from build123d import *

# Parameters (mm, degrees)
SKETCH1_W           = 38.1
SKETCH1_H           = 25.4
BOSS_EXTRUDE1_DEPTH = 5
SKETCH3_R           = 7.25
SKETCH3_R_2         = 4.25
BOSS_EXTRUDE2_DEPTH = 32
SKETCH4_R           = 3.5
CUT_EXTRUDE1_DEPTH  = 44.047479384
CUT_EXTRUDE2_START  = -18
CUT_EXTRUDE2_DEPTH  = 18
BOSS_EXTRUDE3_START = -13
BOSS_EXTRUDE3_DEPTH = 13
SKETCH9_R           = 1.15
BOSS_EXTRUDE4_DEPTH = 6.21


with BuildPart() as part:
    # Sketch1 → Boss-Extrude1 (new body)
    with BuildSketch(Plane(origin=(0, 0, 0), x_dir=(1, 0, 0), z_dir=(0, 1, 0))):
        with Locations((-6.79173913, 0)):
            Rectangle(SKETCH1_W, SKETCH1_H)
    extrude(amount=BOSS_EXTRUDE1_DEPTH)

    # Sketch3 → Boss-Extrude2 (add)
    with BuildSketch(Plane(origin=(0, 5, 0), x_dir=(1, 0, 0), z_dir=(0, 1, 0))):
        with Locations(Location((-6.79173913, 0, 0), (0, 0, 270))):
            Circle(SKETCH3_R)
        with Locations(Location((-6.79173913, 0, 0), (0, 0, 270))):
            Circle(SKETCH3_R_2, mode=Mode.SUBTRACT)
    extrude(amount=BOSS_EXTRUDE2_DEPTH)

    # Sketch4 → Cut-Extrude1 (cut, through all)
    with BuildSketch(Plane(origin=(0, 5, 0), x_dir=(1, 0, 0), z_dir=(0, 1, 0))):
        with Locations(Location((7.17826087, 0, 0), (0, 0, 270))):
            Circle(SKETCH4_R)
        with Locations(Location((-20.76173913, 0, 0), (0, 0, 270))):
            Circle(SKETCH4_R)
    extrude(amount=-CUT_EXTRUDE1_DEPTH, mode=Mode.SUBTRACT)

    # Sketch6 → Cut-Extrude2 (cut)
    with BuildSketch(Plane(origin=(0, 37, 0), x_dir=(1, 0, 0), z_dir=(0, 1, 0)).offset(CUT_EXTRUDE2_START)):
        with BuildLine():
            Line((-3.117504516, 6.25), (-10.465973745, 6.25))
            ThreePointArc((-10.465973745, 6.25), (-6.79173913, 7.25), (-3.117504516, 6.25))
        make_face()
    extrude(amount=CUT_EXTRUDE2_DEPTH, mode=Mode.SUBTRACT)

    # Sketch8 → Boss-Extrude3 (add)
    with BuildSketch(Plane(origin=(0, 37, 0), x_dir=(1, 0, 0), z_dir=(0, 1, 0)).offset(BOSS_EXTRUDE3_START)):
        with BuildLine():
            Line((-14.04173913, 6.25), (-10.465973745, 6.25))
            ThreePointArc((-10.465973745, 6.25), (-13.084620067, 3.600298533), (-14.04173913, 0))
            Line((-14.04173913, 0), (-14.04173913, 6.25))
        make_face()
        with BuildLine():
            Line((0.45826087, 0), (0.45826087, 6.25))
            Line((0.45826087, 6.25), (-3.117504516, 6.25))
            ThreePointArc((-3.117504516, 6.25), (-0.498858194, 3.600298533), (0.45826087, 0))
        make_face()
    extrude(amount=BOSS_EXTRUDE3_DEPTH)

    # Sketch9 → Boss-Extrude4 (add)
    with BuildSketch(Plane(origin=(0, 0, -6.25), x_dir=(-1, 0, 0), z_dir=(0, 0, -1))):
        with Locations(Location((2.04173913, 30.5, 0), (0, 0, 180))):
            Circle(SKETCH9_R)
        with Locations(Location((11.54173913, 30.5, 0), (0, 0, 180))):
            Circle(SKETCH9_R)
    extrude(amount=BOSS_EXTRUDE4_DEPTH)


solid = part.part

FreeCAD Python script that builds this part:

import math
import FreeCAD as App
import Part
import Sketcher
Q = App.Units.Quantity

doc = App.newDocument("Part")
body = doc.addObject("PartDesign::Body", "Body")

sketch1 = doc.addObject("Sketcher::SketchObject", "Sketch")
body.addObject(sketch1)
sketch1.AttachmentSupport = (doc.XZ_Plane, [""])
sketch1.MapMode = "FlatFace"
sketch1.addGeometry([
    Part.LineSegment(App.Vector(-26, -13, 0), App.Vector(-26, 13, 0)),
    Part.LineSegment(App.Vector(-26, 13, 0), App.Vector(12, 13, 0)),
    Part.LineSegment(App.Vector(12, 13, 0), App.Vector(12, -13, 0)),
    Part.LineSegment(App.Vector(12, -13, 0), App.Vector(-26, -13, 0)),
], False)
sketch1.addConstraint([
    Sketcher.Constraint("Coincident", 0, 2, 1, 1),
    Sketcher.Constraint("Coincident", 1, 2, 2, 1),
    Sketcher.Constraint("Coincident", 2, 2, 3, 1),
    Sketcher.Constraint("Coincident", 3, 2, 0, 1),
    Sketcher.Constraint("Vertical", 0),
    Sketcher.Constraint("Horizontal", 1),
    Sketcher.Constraint("Vertical", 2),
    Sketcher.Constraint("Horizontal", 3),
    Sketcher.Constraint("DistanceX", 1, 1, 1, 2, Q("38.1 mm")),
    Sketcher.Constraint("DistanceY", 0, 1, 0, 2, Q("25.4 mm")),
    Sketcher.Constraint("DistanceY", -1, 1, 0, 2, Q("12.7 mm")),
    Sketcher.Constraint("DistanceX", 0, 2, -1, 1, Q("25.841739 mm")),
])
pad1 = doc.addObject("PartDesign::Pad", "Pad")
body.addObject(pad1)
pad1.Profile = sketch1
pad1.Length = 5
pad1.Reversed = True

sketch2 = doc.addObject("Sketcher::SketchObject", "Sketch001")
body.addObject(sketch2)
sketch2.AttachmentSupport = (doc.XZ_Plane, [""])
sketch2.MapMode = "FlatFace"
sketch2.AttachmentOffset = App.Placement(App.Vector(0, 0, -5), App.Rotation())
sketch2.addGeometry([
    Part.Circle(App.Vector(-6.8, 0, 0), App.Vector(0, 0, 1), 7.2),
    Part.Circle(App.Vector(-6.8, 0, 0), App.Vector(0, 0, 1), 4.2),
], False)
sketch2.addConstraint([
    Sketcher.Constraint("Coincident", 1, 3, 0, 3),
    Sketcher.Constraint("PointOnObject", 0, 3, -1),
    Sketcher.Constraint("Diameter", 0, Q("14.5 mm")),
    Sketcher.Constraint("Diameter", 1, Q("8.5 mm")),
    Sketcher.Constraint("DistanceX", 0, 3, -1, 1, Q("6.791739 mm")),
])
pad2 = doc.addObject("PartDesign::Pad", "Pad001")
body.addObject(pad2)
pad2.Profile = sketch2
pad2.Length = 32
pad2.Reversed = True

sketch3 = doc.addObject("Sketcher::SketchObject", "Sketch002")
body.addObject(sketch3)
sketch3.AttachmentSupport = (doc.XZ_Plane, [""])
sketch3.MapMode = "FlatFace"
sketch3.AttachmentOffset = App.Placement(App.Vector(0, 0, -5), App.Rotation())
sketch3.addGeometry([
    Part.Circle(App.Vector(7.2, 0, 0), App.Vector(0, 0, 1), 3.5),
    Part.Circle(App.Vector(-20.8, 0, 0), App.Vector(0, 0, 1), 3.5),
], False)
sketch3.addConstraint([
    Sketcher.Constraint("Equal", 0, 1),
    Sketcher.Constraint("PointOnObject", 0, 3, -1),
    Sketcher.Constraint("PointOnObject", 1, 3, -1),
    Sketcher.Constraint("Diameter", 0, Q("7 mm")),
    Sketcher.Constraint("DistanceX", 1, 3, 0, 3, Q("27.94 mm")),
    Sketcher.Constraint("DistanceX", -1, 1, 0, 3, Q("7.178261 mm")),
])
pocket1 = doc.addObject("PartDesign::Pocket", "Pocket")
body.addObject(pocket1)
pocket1.Profile = sketch3
pocket1.Type = "ThroughAll"
pocket1.Reversed = True

sketch4 = doc.addObject("Sketcher::SketchObject", "Sketch003")
body.addObject(sketch4)
sketch4.AttachmentSupport = (doc.XZ_Plane, [""])
sketch4.MapMode = "FlatFace"
sketch4.AttachmentOffset = App.Placement(App.Vector(0, 0, -19), App.Rotation())
sketch4.addGeometry([
    Part.LineSegment(App.Vector(-10, -6, 0), App.Vector(-3, -6, 0)),
    Part.ArcOfCircle(Part.Circle(App.Vector(-7, 0, 0), App.Vector(0, 0, 1), 7), math.radians(-120), math.radians(-60)),
], False)
sketch4.addConstraint([
    Sketcher.Constraint("Coincident", 0, 1, 1, 1),
    Sketcher.Constraint("Coincident", 1, 2, 0, 2),
    Sketcher.Constraint("Horizontal", 0),
    Sketcher.Constraint("PointOnObject", 1, 3, -1),
    Sketcher.Constraint("Radius", 1, Q("7.25 mm")),
    Sketcher.Constraint("DistanceY", 0, 1, -1, 1, Q("6.25 mm")),
    Sketcher.Constraint("DistanceX", 1, 3, -1, 1, Q("6.791739 mm")),
])
pocket2 = doc.addObject("PartDesign::Pocket", "Pocket001")
body.addObject(pocket2)
pocket2.Profile = sketch4
pocket2.Length = 18

sketch5 = doc.addObject("Sketcher::SketchObject", "Sketch004")
body.addObject(sketch5)
sketch5.AttachmentSupport = (doc.XZ_Plane, [""])
sketch5.MapMode = "FlatFace"
sketch5.AttachmentOffset = App.Placement(App.Vector(0, 0, -24), App.Rotation())
sketch5.addGeometry([
    Part.LineSegment(App.Vector(-10.5, -6.2, 0), App.Vector(-14, -6.2, 0)),
    Part.LineSegment(App.Vector(-14, -6.2, 0), App.Vector(-14, 0, 0)),
    Part.ArcOfCircle(Part.Circle(App.Vector(-6.8, 0, 0), App.Vector(0, 0, 1), 7.2), math.radians(180), math.radians(240)),
    Part.LineSegment(App.Vector(0.5, 0, 0), App.Vector(0.5, -6.2, 0)),
    Part.LineSegment(App.Vector(0.5, -6.2, 0), App.Vector(-3.1, -6.2, 0)),
    Part.ArcOfCircle(Part.Circle(App.Vector(-6.8, 0, 0), App.Vector(0, 0, 1), 7.2), math.radians(-60), math.radians(0)),
], False)
sketch5.addConstraint([
    Sketcher.Constraint("Coincident", 0, 2, 1, 1),
    Sketcher.Constraint("Tangent", 1, 2, 2, 1),
    Sketcher.Constraint("Coincident", 2, 2, 0, 1),
    Sketcher.Constraint("Coincident", 3, 2, 4, 1),
    Sketcher.Constraint("Coincident", 4, 2, 5, 1),
    Sketcher.Constraint("Tangent", 5, 2, 3, 1),
    Sketcher.Constraint("Horizontal", 0),
    Sketcher.Constraint("Vertical", 1),
    Sketcher.Constraint("Vertical", 3),
    Sketcher.Constraint("Horizontal", 4),
    Sketcher.Constraint("Coincident", 5, 3, 2, 3),
    Sketcher.Constraint("Equal", 2, 5),
    Sketcher.Constraint("PointOnObject", 2, 3, -1),
    Sketcher.Constraint("Horizontal", 2, 2, 3, 2),
    Sketcher.Constraint("Radius", 2, Q("7.25 mm")),
    Sketcher.Constraint("DistanceY", 1, 1, 1, 2, Q("6.25 mm")),
    Sketcher.Constraint("DistanceX", 2, 3, -1, 1, Q("6.791739 mm")),
])
pad3 = doc.addObject("PartDesign::Pad", "Pad002")
body.addObject(pad3)
pad3.Profile = sketch5
pad3.Length = 13
pad3.Reversed = True

sketch6 = doc.addObject("Sketcher::SketchObject", "Sketch005")
body.addObject(sketch6)
sketch6.AttachmentSupport = (doc.XY_Plane, [""])
sketch6.MapMode = "FlatFace"
sketch6.AttachmentOffset = App.Placement(App.Vector(0, 0, -6.25), App.Rotation())
sketch6.addGeometry([
    Part.Circle(App.Vector(-2, 30.5, 0), App.Vector(0, 0, 1), 1.1),
    Part.Circle(App.Vector(-11.5, 30.5, 0), App.Vector(0, 0, 1), 1.1),
], False)
sketch6.addConstraint([
    Sketcher.Constraint("Equal", 0, 1),
    Sketcher.Constraint("Horizontal", 0, 3, 1, 3),
    Sketcher.Constraint("Diameter", 0, Q("2.3 mm")),
    Sketcher.Constraint("DistanceY", -1, 1, 0, 3, Q("30.5 mm")),
    Sketcher.Constraint("DistanceX", 1, 3, 0, 3, Q("9.5 mm")),
    Sketcher.Constraint("DistanceX", 0, 3, -1, 1, Q("2.041739 mm")),
])
pad4 = doc.addObject("PartDesign::Pad", "Pad003")
body.addObject(pad4)
pad4.Profile = sketch6
pad4.Length = 6.21
pad4.Reversed = True

doc.recompute()
